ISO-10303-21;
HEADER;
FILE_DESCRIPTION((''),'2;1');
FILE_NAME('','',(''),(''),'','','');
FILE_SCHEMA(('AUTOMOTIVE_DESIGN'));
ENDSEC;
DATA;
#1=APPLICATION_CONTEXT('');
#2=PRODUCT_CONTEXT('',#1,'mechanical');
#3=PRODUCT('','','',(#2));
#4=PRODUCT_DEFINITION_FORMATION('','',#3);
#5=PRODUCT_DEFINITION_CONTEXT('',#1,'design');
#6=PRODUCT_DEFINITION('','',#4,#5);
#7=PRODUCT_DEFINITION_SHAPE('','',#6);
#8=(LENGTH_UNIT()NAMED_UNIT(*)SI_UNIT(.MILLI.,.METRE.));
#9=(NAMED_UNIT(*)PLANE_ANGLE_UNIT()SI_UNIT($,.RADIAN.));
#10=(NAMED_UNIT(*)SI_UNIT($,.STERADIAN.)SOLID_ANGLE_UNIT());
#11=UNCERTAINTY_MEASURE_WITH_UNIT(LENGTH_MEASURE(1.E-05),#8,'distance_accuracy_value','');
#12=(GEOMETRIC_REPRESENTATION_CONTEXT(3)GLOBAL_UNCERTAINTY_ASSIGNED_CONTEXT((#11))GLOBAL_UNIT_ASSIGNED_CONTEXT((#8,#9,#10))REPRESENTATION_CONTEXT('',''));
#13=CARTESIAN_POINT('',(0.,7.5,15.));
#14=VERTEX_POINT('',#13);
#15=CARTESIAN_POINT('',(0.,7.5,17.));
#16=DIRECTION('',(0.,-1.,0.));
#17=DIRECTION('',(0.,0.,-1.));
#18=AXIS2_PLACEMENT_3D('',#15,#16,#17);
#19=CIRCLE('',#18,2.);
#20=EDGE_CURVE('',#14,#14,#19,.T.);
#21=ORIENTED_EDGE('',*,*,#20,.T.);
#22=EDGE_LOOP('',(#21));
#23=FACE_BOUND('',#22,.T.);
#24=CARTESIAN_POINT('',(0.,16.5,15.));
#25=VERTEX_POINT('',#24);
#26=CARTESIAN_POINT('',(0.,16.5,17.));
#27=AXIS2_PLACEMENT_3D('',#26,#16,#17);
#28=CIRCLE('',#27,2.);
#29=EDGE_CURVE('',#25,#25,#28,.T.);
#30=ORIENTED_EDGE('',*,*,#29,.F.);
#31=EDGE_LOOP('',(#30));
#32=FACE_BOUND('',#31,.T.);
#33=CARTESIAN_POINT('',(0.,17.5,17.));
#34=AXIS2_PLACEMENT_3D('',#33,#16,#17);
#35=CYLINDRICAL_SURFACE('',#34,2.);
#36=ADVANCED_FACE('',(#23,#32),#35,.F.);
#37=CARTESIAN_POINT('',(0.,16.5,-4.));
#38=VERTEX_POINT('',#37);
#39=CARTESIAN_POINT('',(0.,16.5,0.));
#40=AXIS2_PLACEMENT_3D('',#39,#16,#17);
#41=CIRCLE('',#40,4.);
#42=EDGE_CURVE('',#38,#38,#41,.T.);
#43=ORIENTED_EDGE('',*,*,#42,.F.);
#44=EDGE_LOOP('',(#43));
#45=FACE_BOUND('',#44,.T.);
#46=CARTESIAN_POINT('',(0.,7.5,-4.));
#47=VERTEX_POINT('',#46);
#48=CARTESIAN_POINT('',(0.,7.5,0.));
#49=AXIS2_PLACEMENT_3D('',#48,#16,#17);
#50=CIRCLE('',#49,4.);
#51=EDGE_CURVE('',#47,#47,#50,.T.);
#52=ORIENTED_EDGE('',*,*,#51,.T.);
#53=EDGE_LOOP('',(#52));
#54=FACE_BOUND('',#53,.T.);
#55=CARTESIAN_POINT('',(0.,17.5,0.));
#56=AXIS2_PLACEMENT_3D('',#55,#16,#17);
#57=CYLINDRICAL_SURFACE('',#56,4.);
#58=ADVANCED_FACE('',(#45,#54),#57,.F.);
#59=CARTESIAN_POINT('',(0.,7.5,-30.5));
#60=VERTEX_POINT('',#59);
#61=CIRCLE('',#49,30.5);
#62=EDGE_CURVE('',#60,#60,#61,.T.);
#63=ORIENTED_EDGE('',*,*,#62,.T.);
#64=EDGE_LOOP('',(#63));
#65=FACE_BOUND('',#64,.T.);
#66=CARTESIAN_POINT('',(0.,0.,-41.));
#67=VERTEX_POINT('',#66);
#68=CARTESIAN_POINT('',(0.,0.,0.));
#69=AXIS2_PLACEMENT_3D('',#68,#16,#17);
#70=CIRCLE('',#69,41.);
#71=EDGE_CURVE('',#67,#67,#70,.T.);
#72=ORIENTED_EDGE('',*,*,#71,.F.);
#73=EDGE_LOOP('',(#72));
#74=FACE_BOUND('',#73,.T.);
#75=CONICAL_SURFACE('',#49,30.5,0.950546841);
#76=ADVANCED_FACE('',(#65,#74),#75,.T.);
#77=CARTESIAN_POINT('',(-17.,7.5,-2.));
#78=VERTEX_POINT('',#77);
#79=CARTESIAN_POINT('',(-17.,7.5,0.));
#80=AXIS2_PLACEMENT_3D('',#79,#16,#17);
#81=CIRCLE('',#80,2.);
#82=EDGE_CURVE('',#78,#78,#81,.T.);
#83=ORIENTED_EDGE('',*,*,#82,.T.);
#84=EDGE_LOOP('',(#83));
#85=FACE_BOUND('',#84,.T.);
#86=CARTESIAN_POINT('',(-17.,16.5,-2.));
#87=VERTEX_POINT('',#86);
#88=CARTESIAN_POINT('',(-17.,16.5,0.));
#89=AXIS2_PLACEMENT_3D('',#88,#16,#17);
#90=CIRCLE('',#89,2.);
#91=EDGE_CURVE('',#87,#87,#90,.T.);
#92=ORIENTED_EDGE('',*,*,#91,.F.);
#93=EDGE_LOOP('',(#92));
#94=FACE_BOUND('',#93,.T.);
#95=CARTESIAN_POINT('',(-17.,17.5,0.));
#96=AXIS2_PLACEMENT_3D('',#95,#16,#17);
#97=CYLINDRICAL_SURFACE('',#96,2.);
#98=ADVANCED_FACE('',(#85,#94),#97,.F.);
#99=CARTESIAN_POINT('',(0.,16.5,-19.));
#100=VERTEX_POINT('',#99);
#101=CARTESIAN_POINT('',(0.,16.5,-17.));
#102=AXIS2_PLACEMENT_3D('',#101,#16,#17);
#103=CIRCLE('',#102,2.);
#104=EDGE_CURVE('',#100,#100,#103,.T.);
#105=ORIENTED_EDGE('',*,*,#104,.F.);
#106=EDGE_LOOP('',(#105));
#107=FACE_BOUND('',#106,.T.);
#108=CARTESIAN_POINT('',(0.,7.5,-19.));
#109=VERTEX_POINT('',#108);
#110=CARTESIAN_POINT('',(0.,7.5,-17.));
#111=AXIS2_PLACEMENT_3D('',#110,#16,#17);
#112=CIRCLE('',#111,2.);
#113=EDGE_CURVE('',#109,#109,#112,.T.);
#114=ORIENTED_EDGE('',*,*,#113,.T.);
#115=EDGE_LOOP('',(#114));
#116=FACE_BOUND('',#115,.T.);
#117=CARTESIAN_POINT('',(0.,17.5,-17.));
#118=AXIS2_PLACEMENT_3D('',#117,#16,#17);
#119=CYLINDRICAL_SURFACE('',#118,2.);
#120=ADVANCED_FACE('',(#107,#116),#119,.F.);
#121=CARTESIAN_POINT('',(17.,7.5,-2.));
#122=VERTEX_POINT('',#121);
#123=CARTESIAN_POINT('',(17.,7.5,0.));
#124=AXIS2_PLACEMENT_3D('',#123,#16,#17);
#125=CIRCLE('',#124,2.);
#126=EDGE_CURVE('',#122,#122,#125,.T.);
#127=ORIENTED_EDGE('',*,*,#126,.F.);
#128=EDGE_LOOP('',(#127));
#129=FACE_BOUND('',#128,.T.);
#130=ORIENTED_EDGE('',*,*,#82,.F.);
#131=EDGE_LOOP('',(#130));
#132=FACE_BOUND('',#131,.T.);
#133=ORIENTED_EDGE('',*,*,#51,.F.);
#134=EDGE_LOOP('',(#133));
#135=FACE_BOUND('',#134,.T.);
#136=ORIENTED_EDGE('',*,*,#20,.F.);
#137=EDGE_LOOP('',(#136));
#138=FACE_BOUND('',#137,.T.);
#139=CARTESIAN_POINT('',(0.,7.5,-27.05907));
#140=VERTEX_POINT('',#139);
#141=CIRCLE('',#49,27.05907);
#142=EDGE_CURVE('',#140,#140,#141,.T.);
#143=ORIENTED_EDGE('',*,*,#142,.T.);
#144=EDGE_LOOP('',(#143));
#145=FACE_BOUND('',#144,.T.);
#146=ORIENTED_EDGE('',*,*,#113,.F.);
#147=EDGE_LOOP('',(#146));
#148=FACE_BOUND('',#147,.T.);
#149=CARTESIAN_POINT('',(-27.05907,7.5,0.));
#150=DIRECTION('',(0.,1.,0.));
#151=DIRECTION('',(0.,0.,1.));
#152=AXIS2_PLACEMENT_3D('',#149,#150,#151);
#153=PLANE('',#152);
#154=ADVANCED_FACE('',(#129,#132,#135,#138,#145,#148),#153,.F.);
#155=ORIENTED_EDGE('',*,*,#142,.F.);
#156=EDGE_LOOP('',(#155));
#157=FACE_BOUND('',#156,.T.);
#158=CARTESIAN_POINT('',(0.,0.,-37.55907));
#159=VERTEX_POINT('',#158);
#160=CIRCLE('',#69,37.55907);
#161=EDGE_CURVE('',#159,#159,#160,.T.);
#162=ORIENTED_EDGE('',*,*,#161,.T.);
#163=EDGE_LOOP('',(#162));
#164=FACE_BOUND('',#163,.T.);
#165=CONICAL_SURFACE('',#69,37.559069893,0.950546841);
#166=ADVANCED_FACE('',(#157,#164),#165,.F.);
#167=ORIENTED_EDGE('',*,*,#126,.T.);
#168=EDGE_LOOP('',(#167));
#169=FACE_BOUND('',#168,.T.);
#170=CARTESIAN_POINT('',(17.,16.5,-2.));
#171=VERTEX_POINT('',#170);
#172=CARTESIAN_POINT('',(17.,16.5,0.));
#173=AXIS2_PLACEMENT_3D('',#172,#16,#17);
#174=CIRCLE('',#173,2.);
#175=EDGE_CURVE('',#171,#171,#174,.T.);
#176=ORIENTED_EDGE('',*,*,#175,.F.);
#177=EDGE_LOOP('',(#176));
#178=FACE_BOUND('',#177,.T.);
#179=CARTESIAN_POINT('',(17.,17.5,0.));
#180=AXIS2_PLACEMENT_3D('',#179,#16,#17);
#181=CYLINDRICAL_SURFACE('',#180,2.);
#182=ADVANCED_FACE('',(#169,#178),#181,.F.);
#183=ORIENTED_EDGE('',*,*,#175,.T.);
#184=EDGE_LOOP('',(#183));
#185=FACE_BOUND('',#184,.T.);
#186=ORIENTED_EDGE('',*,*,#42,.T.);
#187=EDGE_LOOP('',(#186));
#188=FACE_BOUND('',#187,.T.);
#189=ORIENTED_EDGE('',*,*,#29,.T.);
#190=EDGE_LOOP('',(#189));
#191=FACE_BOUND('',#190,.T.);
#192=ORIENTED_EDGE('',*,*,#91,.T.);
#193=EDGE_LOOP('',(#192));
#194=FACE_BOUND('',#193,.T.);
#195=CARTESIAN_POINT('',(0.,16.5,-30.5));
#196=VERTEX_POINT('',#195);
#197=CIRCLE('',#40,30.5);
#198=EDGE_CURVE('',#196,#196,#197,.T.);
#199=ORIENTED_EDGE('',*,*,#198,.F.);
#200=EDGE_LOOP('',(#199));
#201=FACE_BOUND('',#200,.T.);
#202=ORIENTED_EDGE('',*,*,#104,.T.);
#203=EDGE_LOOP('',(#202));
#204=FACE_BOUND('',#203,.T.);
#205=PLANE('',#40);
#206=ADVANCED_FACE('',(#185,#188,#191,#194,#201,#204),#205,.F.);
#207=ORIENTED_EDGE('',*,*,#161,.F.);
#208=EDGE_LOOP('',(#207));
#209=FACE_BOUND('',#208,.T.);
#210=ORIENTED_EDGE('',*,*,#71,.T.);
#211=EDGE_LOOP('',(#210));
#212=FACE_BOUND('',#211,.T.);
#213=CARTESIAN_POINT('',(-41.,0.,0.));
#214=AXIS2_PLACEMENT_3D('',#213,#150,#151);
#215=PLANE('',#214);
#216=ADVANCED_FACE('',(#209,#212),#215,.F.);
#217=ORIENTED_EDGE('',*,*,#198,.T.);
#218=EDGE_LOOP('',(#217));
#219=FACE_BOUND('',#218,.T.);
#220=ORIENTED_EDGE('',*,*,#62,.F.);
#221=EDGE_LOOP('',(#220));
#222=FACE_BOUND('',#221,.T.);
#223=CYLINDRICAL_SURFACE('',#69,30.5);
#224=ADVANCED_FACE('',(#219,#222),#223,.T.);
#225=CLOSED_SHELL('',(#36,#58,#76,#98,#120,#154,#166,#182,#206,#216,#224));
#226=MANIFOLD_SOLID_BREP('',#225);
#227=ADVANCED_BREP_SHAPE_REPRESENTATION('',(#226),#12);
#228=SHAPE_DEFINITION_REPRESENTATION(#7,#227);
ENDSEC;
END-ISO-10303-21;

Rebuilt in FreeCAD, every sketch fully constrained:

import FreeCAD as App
import Part
import Sketcher


def add_polygon(sketch, points):
    """Adds a closed chain of lines whose ends are joined by coincident constraints."""
    first, n = sketch.GeometryCount, len(points)
    for a, b in zip(points, points[1:] + points[:1]):
        sketch.addGeometry(Part.LineSegment(App.Vector(*a, 0), App.Vector(*b, 0)), False)
    for i in range(n):
        sketch.addConstraint(Sketcher.Constraint("Coincident", first + i, 2, first + (i + 1) % n, 1))

doc = App.newDocument("Part")
body = doc.addObject("PartDesign::Body", "Body")

sketch1 = body.newObject("Sketcher::SketchObject", "Sketch")
sketch1.AttachmentSupport = (doc.getObject("XY_Plane"), [""])
sketch1.MapMode = "FlatFace"
add_polygon(sketch1, [(0, 16.5), (-30.5, 16.5), (-30.5, 7.5), (-41, 0), (-37.6, 0), (-27.1, 7.5), (0, 7.5)])
sketch1.addConstraint(Sketcher.Constraint("Horizontal", 0))
sketch1.addConstraint(Sketcher.Constraint("Vertical", 1))
sketch1.addConstraint(Sketcher.Constraint("Horizontal", 3))
sketch1.addConstraint(Sketcher.Constraint("Horizontal", 5))
sketch1.addConstraint(Sketcher.Constraint("Vertical", 6))
sketch1.addConstraint(Sketcher.Constraint("PointOnObject", 2, 2, -1))
sketch1.addConstraint(Sketcher.Constraint("PointOnObject", 5, 2, -2))
sketch1.addConstraint(Sketcher.Constraint("Parallel", 2, 4))
sketch1.addConstraint(Sketcher.Constraint("Horizontal", 1, 2, 4, 2))
sketch1.addConstraint(Sketcher.Constraint("DistanceY", 1, 2, 1, 1, 9.0))
sketch1.addConstraint(Sketcher.Constraint("DistanceX", 0, 2, 0, 1, 30.5))
sketch1.addConstraint(Sketcher.Constraint("DistanceX", 2, 2, -1, 1, 41.0))
sketch1.addConstraint(Sketcher.Constraint("DistanceY", -1, 1, 0, 2, 16.5))
sketch1.addConstraint(Sketcher.Constraint("DistanceX", 3, 1, 3, 2, 3.44093))
revolution = body.newObject("PartDesign::Revolution", "Revolution")
revolution.Profile = sketch1
revolution.ReferenceAxis = (sketch1, ["V_Axis"])
revolution.Angle = 360

sketch2 = body.newObject("Sketcher::SketchObject", "Sketch001")
sketch2.AttachmentSupport = (doc.getObject("XZ_Plane"), [""])
sketch2.MapMode = "FlatFace"
sketch2.AttachmentOffset = App.Placement(App.Vector(0, 0, -7.5), App.Rotation())
sketch2.addGeometry(Part.Circle(App.Vector(0, 0, 0), App.Vector(0, 0, 1), 4), False)
sketch2.addGeometry(Part.Circle(App.Vector(0, 17, 0), App.Vector(0, 0, 1), 2), False)
sketch2.addGeometry(Part.Circle(App.Vector(17, 0, 0), App.Vector(0, 0, 1), 2), False)
sketch2.addGeometry(Part.Circle(App.Vector(0, -17, 0), App.Vector(0, 0, 1), 2), False)
sketch2.addGeometry(Part.Circle(App.Vector(-17, 0, 0), App.Vector(0, 0, 1), 2), False)
sketch2.addConstraint(Sketcher.Constraint("Coincident", 0, 3, -1, 1))
sketch2.addConstraint(Sketcher.Constraint("Equal", 1, 2))
sketch2.addConstraint(Sketcher.Constraint("Equal", 2, 3))
sketch2.addConstraint(Sketcher.Constraint("Equal", 3, 4))
sketch2.addConstraint(Sketcher.Constraint("Symmetric", 1, 3, 3, 3, -1, 1))
sketch2.addConstraint(Sketcher.Constraint("Symmetric", 2, 3, 4, 3, -1, 1))
sketch2.addConstraint(Sketcher.Constraint("PointOnObject", 1, 3, -2))
sketch2.addConstraint(Sketcher.Constraint("PointOnObject", 2, 3, -1))
sketch2.addConstraint(Sketcher.Constraint("Diameter", 0, 8.0))
sketch2.addConstraint(Sketcher.Constraint("Diameter", 1, 4.0))
sketch2.addConstraint(Sketcher.Constraint("DistanceY", -1, 1, 1, 3, 17.0))
sketch2.addConstraint(Sketcher.Constraint("DistanceX", -1, 1, 2, 3, 17.0))
pocket1 = body.newObject("PartDesign::Pocket", "Pocket")
pocket1.Profile = sketch2
pocket1.Length = 10

doc.recompute()
